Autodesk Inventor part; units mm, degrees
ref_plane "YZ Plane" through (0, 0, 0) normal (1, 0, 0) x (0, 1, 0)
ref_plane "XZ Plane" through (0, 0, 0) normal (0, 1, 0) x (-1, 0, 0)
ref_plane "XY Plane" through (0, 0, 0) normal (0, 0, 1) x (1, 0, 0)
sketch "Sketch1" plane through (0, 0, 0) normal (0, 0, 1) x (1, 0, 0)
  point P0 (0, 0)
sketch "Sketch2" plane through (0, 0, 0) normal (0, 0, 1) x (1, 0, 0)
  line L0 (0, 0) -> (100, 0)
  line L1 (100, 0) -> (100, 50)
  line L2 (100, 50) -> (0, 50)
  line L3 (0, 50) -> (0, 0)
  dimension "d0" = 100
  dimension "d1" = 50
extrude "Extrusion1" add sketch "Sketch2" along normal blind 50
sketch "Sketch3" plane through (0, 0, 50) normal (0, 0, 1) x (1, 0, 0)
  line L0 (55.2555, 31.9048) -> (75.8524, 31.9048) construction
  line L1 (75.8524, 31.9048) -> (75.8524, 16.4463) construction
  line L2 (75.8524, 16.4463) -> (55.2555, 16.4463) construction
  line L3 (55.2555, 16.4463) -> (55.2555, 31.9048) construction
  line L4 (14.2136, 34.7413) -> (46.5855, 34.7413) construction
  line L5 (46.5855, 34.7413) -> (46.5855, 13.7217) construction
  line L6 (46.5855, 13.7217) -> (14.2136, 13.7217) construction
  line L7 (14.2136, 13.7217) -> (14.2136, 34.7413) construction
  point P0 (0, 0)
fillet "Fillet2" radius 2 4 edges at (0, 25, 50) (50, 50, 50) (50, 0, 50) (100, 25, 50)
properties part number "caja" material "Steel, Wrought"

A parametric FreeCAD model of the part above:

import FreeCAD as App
import Part
import Sketcher

V = App.Vector


def edges_at(feature, points):
    """Names of the edges that pass closest to the given points."""
    edges = feature.Shape.Edges
    near = lambda p: min(range(len(edges)), key=lambda i: edges[i].distToShape(Part.Vertex(*p))[0])
    return sorted({f"Edge{near(p) + 1}" for p in points})

doc = App.newDocument("Part")
body = doc.addObject("PartDesign::Body", "Body")

sketch1 = body.newObject("Sketcher::SketchObject", "Sketch")
sketch1.AttachmentSupport = (doc.getObject("XY_Plane"), [""])
sketch1.MapMode = "FlatFace"
sketch1.addGeometry(Part.LineSegment(V(0, 50, 0), V(0, 0, 0)), False)
sketch1.addGeometry(Part.LineSegment(V(0, 0, 0), V(100, 0, 0)), False)
sketch1.addGeometry(Part.LineSegment(V(100, 0, 0), V(100, 50, 0)), False)
sketch1.addGeometry(Part.LineSegment(V(100, 50, 0), V(0, 50, 0)), False)
sketch1.addConstraint(Sketcher.Constraint("Coincident", 0, 2, 1, 1))
sketch1.addConstraint(Sketcher.Constraint("Coincident", 1, 2, 2, 1))
sketch1.addConstraint(Sketcher.Constraint("Coincident", 2, 2, 3, 1))
sketch1.addConstraint(Sketcher.Constraint("Coincident", 3, 2, 0, 1))
sketch1.addConstraint(Sketcher.Constraint("Vertical", 0))
sketch1.addConstraint(Sketcher.Constraint("Horizontal", 1))
sketch1.addConstraint(Sketcher.Constraint("Vertical", 2))
sketch1.addConstraint(Sketcher.Constraint("Horizontal", 3))
sketch1.addConstraint(Sketcher.Constraint("Coincident", 0, 2, -1, 1))
sketch1.addConstraint(Sketcher.Constraint("DistanceX", 1, 1, 1, 2, 100.0))
sketch1.addConstraint(Sketcher.Constraint("DistanceY", 0, 2, 0, 1, 50.0))
pad1 = body.newObject("PartDesign::Pad", "Pad")
pad1.Profile = sketch1
pad1.Length = 50
doc.recompute()

fillet = body.newObject("PartDesign::Fillet", "Fillet")
fillet.Base = (pad1, edges_at(pad1, [
    (0, 25, 50),
    (50, 50, 50),
    (50, 0, 50),
    (100, 25, 50),
]))
fillet.Radius = 2

doc.recompute()
